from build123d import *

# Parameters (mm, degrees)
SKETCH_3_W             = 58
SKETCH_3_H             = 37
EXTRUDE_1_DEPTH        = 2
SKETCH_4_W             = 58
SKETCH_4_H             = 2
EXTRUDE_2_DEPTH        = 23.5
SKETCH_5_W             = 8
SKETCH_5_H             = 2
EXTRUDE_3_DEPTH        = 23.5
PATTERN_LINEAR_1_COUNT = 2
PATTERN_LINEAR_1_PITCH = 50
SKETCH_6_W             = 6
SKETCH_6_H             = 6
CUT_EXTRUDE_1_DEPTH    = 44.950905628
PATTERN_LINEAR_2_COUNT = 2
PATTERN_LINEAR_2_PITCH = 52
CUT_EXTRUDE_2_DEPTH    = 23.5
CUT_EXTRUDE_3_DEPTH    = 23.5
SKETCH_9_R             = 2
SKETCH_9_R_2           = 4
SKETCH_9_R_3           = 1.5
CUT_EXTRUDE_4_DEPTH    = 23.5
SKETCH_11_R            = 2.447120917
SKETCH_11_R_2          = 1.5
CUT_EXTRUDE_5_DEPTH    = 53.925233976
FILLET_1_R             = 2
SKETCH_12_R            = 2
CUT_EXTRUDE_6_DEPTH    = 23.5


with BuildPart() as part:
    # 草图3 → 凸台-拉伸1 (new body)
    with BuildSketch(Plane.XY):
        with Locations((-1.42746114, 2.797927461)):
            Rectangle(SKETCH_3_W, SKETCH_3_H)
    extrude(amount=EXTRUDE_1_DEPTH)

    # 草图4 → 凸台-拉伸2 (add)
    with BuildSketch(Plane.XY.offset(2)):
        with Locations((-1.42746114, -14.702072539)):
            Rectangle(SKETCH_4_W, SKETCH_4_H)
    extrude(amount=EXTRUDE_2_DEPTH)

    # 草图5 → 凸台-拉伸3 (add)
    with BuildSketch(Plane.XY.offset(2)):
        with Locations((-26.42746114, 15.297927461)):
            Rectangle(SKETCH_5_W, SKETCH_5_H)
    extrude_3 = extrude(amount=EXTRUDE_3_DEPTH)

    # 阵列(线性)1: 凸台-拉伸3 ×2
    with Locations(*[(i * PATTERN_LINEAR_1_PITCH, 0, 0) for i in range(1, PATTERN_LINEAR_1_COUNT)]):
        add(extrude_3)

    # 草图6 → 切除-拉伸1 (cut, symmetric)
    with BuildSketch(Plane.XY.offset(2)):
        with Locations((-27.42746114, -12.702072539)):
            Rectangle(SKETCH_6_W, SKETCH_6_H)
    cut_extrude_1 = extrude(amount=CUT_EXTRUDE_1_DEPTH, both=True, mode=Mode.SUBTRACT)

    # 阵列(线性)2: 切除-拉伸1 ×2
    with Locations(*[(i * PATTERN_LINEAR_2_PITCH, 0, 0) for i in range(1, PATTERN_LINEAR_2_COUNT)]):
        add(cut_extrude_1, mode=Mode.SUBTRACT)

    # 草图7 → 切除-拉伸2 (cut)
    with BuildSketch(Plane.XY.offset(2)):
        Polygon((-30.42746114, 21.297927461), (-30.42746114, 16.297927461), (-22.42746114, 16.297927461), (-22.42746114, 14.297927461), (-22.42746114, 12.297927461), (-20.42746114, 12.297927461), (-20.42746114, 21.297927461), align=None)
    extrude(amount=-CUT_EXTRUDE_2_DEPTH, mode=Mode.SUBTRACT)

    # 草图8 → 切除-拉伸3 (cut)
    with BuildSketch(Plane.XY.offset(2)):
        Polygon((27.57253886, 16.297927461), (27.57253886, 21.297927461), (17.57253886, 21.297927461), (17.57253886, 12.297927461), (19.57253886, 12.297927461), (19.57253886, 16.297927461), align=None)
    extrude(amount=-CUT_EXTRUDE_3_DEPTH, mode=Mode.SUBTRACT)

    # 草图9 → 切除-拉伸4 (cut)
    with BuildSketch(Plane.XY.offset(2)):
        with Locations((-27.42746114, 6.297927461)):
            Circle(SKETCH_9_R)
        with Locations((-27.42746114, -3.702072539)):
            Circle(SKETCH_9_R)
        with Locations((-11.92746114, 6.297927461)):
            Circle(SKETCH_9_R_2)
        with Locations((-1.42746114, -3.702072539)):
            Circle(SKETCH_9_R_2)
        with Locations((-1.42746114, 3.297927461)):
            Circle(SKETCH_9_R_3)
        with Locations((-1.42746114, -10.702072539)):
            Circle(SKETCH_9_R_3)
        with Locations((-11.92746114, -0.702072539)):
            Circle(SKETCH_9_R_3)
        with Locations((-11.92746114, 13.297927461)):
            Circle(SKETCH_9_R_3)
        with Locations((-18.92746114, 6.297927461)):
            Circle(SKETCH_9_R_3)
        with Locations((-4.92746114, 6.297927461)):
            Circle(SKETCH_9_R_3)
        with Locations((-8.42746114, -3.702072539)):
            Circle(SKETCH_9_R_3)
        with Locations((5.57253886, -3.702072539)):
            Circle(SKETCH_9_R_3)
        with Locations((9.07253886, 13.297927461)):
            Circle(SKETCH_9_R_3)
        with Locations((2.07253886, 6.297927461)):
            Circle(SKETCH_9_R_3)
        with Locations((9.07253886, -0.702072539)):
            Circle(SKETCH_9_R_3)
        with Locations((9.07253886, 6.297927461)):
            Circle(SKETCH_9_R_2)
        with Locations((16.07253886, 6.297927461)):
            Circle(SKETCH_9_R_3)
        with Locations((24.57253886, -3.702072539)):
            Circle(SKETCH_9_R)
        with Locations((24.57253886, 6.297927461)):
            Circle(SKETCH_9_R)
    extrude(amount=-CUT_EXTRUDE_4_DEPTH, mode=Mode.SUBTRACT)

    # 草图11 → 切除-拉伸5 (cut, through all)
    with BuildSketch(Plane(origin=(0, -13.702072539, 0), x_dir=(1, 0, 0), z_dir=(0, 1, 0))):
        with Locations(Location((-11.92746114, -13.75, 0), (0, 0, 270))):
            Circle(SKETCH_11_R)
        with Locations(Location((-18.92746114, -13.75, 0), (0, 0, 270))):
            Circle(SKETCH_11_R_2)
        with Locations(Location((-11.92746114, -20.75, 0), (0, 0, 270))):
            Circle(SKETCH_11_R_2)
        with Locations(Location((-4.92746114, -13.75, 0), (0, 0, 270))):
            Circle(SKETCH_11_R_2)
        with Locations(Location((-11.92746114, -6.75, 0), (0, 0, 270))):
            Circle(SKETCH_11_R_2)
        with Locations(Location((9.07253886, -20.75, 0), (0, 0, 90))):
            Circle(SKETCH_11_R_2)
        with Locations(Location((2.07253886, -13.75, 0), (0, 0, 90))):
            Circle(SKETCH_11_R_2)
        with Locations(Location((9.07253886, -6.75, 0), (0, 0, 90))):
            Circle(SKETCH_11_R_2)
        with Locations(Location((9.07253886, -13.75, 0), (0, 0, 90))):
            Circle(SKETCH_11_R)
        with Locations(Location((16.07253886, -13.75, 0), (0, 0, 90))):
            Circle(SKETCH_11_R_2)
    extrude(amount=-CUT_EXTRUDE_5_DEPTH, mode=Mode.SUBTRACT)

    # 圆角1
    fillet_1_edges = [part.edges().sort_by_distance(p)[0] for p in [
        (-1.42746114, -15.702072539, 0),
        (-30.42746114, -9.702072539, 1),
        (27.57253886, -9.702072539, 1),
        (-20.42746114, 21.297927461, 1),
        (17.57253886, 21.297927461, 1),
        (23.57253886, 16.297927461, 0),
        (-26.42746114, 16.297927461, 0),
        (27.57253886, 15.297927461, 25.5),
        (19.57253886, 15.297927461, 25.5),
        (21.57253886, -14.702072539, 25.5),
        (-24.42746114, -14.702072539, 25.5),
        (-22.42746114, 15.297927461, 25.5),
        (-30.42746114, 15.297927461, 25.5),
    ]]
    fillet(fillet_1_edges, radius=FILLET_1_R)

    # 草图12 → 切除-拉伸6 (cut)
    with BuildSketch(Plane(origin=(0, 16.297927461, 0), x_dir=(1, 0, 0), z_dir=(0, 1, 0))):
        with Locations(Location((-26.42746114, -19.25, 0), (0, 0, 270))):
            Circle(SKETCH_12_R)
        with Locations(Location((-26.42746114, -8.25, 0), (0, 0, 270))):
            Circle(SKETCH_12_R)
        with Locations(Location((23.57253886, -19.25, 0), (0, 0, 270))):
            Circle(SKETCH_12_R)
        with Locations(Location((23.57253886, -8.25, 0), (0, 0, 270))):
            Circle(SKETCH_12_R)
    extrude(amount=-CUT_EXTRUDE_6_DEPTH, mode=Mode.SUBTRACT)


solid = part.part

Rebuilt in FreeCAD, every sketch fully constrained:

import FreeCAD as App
import Part
import Sketcher
Q = App.Units.Quantity


def edges_at(feature, points):
    """Names of the edges that pass closest to the given points."""
    edges = feature.Shape.Edges
    near = lambda p: min(range(len(edges)), key=lambda i: edges[i].distToShape(Part.Vertex(*p))[0])
    return sorted({f"Edge{near(p) + 1}" for p in points})


def add_polygon(sketch, points):
    """Adds a closed chain of lines whose ends are joined by coincident constraints."""
    first, n = sketch.GeometryCount, len(points)
    for a, b in zip(points, points[1:] + points[:1]):
        sketch.addGeometry(Part.LineSegment(App.Vector(*a, 0), App.Vector(*b, 0)), False)
    for i in range(n):
        sketch.addConstraint(Sketcher.Constraint("Coincident", first + i, 2, first + (i + 1) % n, 1))

doc = App.newDocument("Part")
body = doc.addObject("PartDesign::Body", "Body")

# Sketch on XY plane
sketch1 = body.newObject("Sketcher::SketchObject", "Sketch")
sketch1.AttachmentSupport = (doc.getObject("XY_Plane"), [""])
sketch1.MapMode = "FlatFace"
add_polygon(sketch1, [(-30, 21), (-30, -16), (28, -16), (28, 21)])  # lines 0-3
sketch1.addConstraint([
    Sketcher.Constraint("Vertical", 0),
    Sketcher.Constraint("Horizontal", 1),
    Sketcher.Constraint("Vertical", 2),
    Sketcher.Constraint("Horizontal", 3),
    Sketcher.Constraint("DistanceX", 1, 1, 1, 2, Q("58 mm")),
    Sketcher.Constraint("DistanceY", 0, 2, 0, 1, Q("37 mm")),
    Sketcher.Constraint("DistanceX", 0, 2, -1, 1, Q("30.427461 mm")),
    Sketcher.Constraint("DistanceY", 0, 2, -1, 1, Q("15.702073 mm")),
])
pad1 = body.newObject("PartDesign::Pad", "Pad")
pad1.Profile = sketch1
pad1.Length = 2

# Sketch on XY plane
sketch2 = body.newObject("Sketcher::SketchObject", "Sketch001")
sketch2.AttachmentSupport = (doc.getObject("XY_Plane"), [""])
sketch2.MapMode = "FlatFace"
sketch2.AttachmentOffset = App.Placement(App.Vector(0, 0, 2), App.Rotation())
add_polygon(sketch2, [(-30.4, -13.7), (-30.4, -15.7), (27.6, -15.7), (27.6, -13.7)])  # lines 0-3
sketch2.addConstraint([
    Sketcher.Constraint("Vertical", 0),
    Sketcher.Constraint("Horizontal", 1),
    Sketcher.Constraint("Vertical", 2),
    Sketcher.Constraint("Horizontal", 3),
    Sketcher.Constraint("DistanceX", 1, 1, 1, 2, Q("58 mm")),
    Sketcher.Constraint("DistanceY", 0, 2, 0, 1, Q("2 mm")),
    Sketcher.Constraint("DistanceX", 0, 2, -1, 1, Q("30.427461 mm")),
    Sketcher.Constraint("DistanceY", 0, 2, -1, 1, Q("15.702073 mm")),
])
pad2 = body.newObject("PartDesign::Pad", "Pad001")
pad2.Profile = sketch2
pad2.Length = 23.5

# Sketch on XY plane
sketch3 = body.newObject("Sketcher::SketchObject", "Sketch002")
sketch3.AttachmentSupport = (doc.getObject("XY_Plane"), [""])
sketch3.MapMode = "FlatFace"
sketch3.AttachmentOffset = App.Placement(App.Vector(0, 0, 2), App.Rotation())
add_polygon(sketch3, [(-30.4, 16.3), (-30.4, 14.3), (-22.4, 14.3), (-22.4, 16.3)])  # lines 0-3
sketch3.addConstraint([
    Sketcher.Constraint("Vertical", 0),
    Sketcher.Constraint("Horizontal", 1),
    Sketcher.Constraint("Vertical", 2),
    Sketcher.Constraint("Horizontal", 3),
    Sketcher.Constraint("DistanceX", 1, 1, 1, 2, Q("8 mm")),
    Sketcher.Constraint("DistanceY", 0, 2, 0, 1, Q("2 mm")),
    Sketcher.Constraint("DistanceX", 0, 2, -1, 1, Q("30.427461 mm")),
    Sketcher.Constraint("DistanceY", -1, 1, 0, 2, Q("14.297927 mm")),
])
pad3 = body.newObject("PartDesign::Pad", "Pad002")
pad3.Profile = sketch3
pad3.Length = 23.5
doc.recompute()

linearpattern = body.newObject("PartDesign::LinearPattern", "LinearPattern")
linearpattern.Originals = [pad3]
linearpattern.Direction = (doc.getObject("X_Axis"), [""])
linearpattern.Mode = "offset"
linearpattern.Offset = 50
linearpattern.Occurrences = 2
body.Tip = linearpattern

# Sketch on XY plane
sketch4 = body.newObject("Sketcher::SketchObject", "Sketch003")
sketch4.AttachmentSupport = (doc.getObject("XY_Plane"), [""])
sketch4.MapMode = "FlatFace"
sketch4.AttachmentOffset = App.Placement(App.Vector(0, 0, 2), App.Rotation())
add_polygon(sketch4, [(-30, -10), (-30, -16), (-24, -16), (-24, -10)])  # lines 0-3
sketch4.addConstraint([
    Sketcher.Constraint("Vertical", 0),
    Sketcher.Constraint("Horizontal", 1),
    Sketcher.Constraint("Vertical", 2),
    Sketcher.Constraint("Horizontal", 3),
    Sketcher.Constraint("Equal", 3, 0),
    Sketcher.Constraint("DistanceX", 1, 1, 1, 2, Q("6 mm")),
    Sketcher.Constraint("DistanceX", 0, 2, -1, 1, Q("30.427461 mm")),
    Sketcher.Constraint("DistanceY", 0, 2, -1, 1, Q("15.702073 mm")),
])
pocket1 = body.newObject("PartDesign::Pocket", "Pocket")
pocket1.Profile = sketch4
pocket1.Length = 89.901811
pocket1.Midplane = True
doc.recompute()

linearpattern2 = body.newObject("PartDesign::LinearPattern", "LinearPattern001")
linearpattern2.Originals = [pocket1]
linearpattern2.Direction = (doc.getObject("X_Axis"), [""])
linearpattern2.Mode = "offset"
linearpattern2.Offset = 52
linearpattern2.Occurrences = 2
body.Tip = linearpattern2

# Sketch on XY plane
sketch5 = body.newObject("Sketcher::SketchObject", "Sketch004")
sketch5.AttachmentSupport = (doc.getObject("XY_Plane"), [""])
sketch5.MapMode = "FlatFace"
sketch5.AttachmentOffset = App.Placement(App.Vector(0, 0, 2), App.Rotation())
add_polygon(sketch5, [(-30.4, 21.3), (-30.4, 16.3), (-22.4, 16.3), (-22.4, 12.3), (-20.4, 12.3), (-20.4, 21.3)])  # lines 0-5
sketch5.addConstraint([
    Sketcher.Constraint("Vertical", 0),
    Sketcher.Constraint("Horizontal", 1),
    Sketcher.Constraint("Vertical", 2),
    Sketcher.Constraint("Horizontal", 3),
    Sketcher.Constraint("Vertical", 4),
    Sketcher.Constraint("Horizontal", 5),
    Sketcher.Constraint("DistanceX", 1, 1, 1, 2, Q("8 mm")),
    Sketcher.Constraint("DistanceX", 3, 1, 3, 2, Q("2 mm")),
    Sketcher.Constraint("DistanceY", 0, 2, 0, 1, Q("5 mm")),
    Sketcher.Constraint("DistanceY", 2, 2, 2, 1, Q("4 mm")),
    Sketcher.Constraint("DistanceX", 0, 2, -1, 1, Q("30.427461 mm")),
    Sketcher.Constraint("DistanceY", -1, 1, 0, 2, Q("16.297927 mm")),
])
pocket2 = body.newObject("PartDesign::Pocket", "Pocket001")
pocket2.Profile = sketch5
pocket2.Length = 23.5

# Sketch on XY plane
sketch6 = body.newObject("Sketcher::SketchObject", "Sketch005")
sketch6.AttachmentSupport = (doc.getObject("XY_Plane"), [""])
sketch6.MapMode = "FlatFace"
sketch6.AttachmentOffset = App.Placement(App.Vector(0, 0, 2), App.Rotation())
add_polygon(sketch6, [(27.6, 16.3), (27.6, 21.3), (17.6, 21.3), (17.6, 12.3), (19.6, 12.3), (19.6, 16.3)])  # lines 0-5
sketch6.addConstraint([
    Sketcher.Constraint("Vertical", 0),
    Sketcher.Constraint("Horizontal", 1),
    Sketcher.Constraint("Vertical", 2),
    Sketcher.Constraint("Horizontal", 3),
    Sketcher.Constraint("Vertical", 4),
    Sketcher.Constraint("Horizontal", 5),
    Sketcher.Constraint("DistanceX", 1, 2, 1, 1, Q("10 mm")),
    Sketcher.Constraint("DistanceX", 3, 1, 3, 2, Q("2 mm")),
    Sketcher.Constraint("DistanceY", 0, 1, 0, 2, Q("5 mm")),
    Sketcher.Constraint("DistanceY", 2, 2, 2, 1, Q("9 mm")),
    Sketcher.Constraint("DistanceX", -1, 1, 0, 2, Q("27.572539 mm")),
    Sketcher.Constraint("DistanceY", -1, 1, 0, 2, Q("21.297927 mm")),
])
pocket3 = body.newObject("PartDesign::Pocket", "Pocket002")
pocket3.Profile = sketch6
pocket3.Length = 23.5

# Sketch on XY plane
sketch7 = body.newObject("Sketcher::SketchObject", "Sketch006")
sketch7.AttachmentSupport = (doc.getObject("XY_Plane"), [""])
sketch7.MapMode = "FlatFace"
sketch7.AttachmentOffset = App.Placement(App.Vector(0, 0, 2), App.Rotation())
sketch7.addGeometry([
    Part.Circle(App.Vector(-27.4, 6.3, 0), App.Vector(0, 0, 1), 2),  # 0
    Part.Circle(App.Vector(-27.4, -3.7, 0), App.Vector(0, 0, 1), 2),  # 1
    Part.Circle(App.Vector(-11.9, 6.3, 0), App.Vector(0, 0, 1), 4),  # 2
    Part.Circle(App.Vector(-1.4, -3.7, 0), App.Vector(0, 0, 1), 4),  # 3
    Part.Circle(App.Vector(-1.4, 3.3, 0), App.Vector(0, 0, 1), 1.5),  # 4
    Part.Circle(App.Vector(-1.4, -10.7, 0), App.Vector(0, 0, 1), 1.5),  # 5
    Part.Circle(App.Vector(-11.9, -0.7, 0), App.Vector(0, 0, 1), 1.5),  # 6
    Part.Circle(App.Vector(-11.9, 13.3, 0), App.Vector(0, 0, 1), 1.5),  # 7
    Part.Circle(App.Vector(-18.9, 6.3, 0), App.Vector(0, 0, 1), 1.5),  # 8
    Part.Circle(App.Vector(-4.9, 6.3, 0), App.Vector(0, 0, 1), 1.5),  # 9
    Part.Circle(App.Vector(-8.4, -3.7, 0), App.Vector(0, 0, 1), 1.5),  # 10
    Part.Circle(App.Vector(5.6, -3.7, 0), App.Vector(0, 0, 1), 1.5),  # 11
    Part.Circle(App.Vector(9.1, 13.3, 0), App.Vector(0, 0, 1), 1.5),  # 12
    Part.Circle(App.Vector(2.1, 6.3, 0), App.Vector(0, 0, 1), 1.5),  # 13
    Part.Circle(App.Vector(9.1, -0.7, 0), App.Vector(0, 0, 1), 1.5),  # 14
    Part.Circle(App.Vector(9.1, 6.3, 0), App.Vector(0, 0, 1), 4),  # 15
    Part.Circle(App.Vector(16.1, 6.3, 0), App.Vector(0, 0, 1), 1.5),  # 16
    Part.Circle(App.Vector(24.6, -3.7, 0), App.Vector(0, 0, 1), 2),  # 17
    Part.Circle(App.Vector(24.6, 6.3, 0), App.Vector(0, 0, 1), 2),  # 18
], False)
sketch7.addConstraint([
    Sketcher.Constraint("Equal", 0, 1),
    Sketcher.Constraint("Equal", 2, 3),
    Sketcher.Constraint("Equal", 4, 5),
    Sketcher.Constraint("Equal", 5, 6),
    Sketcher.Constraint("Equal", 6, 7),
    Sketcher.Constraint("Equal", 7, 8),
    Sketcher.Constraint("Equal", 8, 9),
    Sketcher.Constraint("Equal", 9, 10),
    Sketcher.Constraint("Equal", 10, 11),
    Sketcher.Constraint("Equal", 11, 12),
    Sketcher.Constraint("Equal", 12, 13),
    Sketcher.Constraint("Equal", 13, 14),
    Sketcher.Constraint("Equal", 3, 15),
    Sketcher.Constraint("Equal", 14, 16),
    Sketcher.Constraint("Equal", 1, 17),
    Sketcher.Constraint("Equal", 17, 18),
    Sketcher.Constraint("Horizontal", 0, 3, 2, 3),
    Sketcher.Constraint("Horizontal", 1, 3, 3, 3),
    Sketcher.Constraint("Horizontal", 2, 3, 8, 3),
    Sketcher.Constraint("Horizontal", 8, 3, 9, 3),
    Sketcher.Constraint("Horizontal", 3, 3, 10, 3),
    Sketcher.Constraint("Horizontal", 10, 3, 11, 3),
    Sketcher.Constraint("Horizontal", 7, 3, 12, 3),
    Sketcher.Constraint("Horizontal", 9, 3, 13, 3),
    Sketcher.Constraint("Horizontal", 6, 3, 14, 3),
    Sketcher.Constraint("Horizontal", 13, 3, 15, 3),
    Sketcher.Constraint("Horizontal", 15, 3, 16, 3),
    Sketcher.Constraint("Horizontal", 11, 3, 17, 3),
    Sketcher.Constraint("Horizontal", 16, 3, 18, 3),
    Sketcher.Constraint("Vertical", 0, 3, 1, 3),
    Sketcher.Constraint("Vertical", 3, 3, 4, 3),
    Sketcher.Constraint("Vertical", 4, 3, 5, 3),
    Sketcher.Constraint("Vertical", 2, 3, 6, 3),
    Sketcher.Constraint("Vertical", 6, 3, 7, 3),
    Sketcher.Constraint("Vertical", 12, 3, 14, 3),
    Sketcher.Constraint("Vertical", 14, 3, 15, 3),
    Sketcher.Constraint("Vertical", 17, 3, 18, 3),
    Sketcher.Constraint("Diameter", 0, Q("4 mm")),
    Sketcher.Constraint("Diameter", 2, Q("8 mm")),
    Sketcher.Constraint("Diameter", 4, Q("3 mm")),
    Sketcher.Constraint("DistanceY", 1, 3, 0, 3, Q("10 mm")),
    Sketcher.Constraint("DistanceX", 1, 3, 3, 3, Q("26 mm")),
    Sketcher.Constraint("DistanceY", 3, 3, 4, 3, Q("7 mm")),
    Sketcher.Constraint("DistanceY", 5, 3, 3, 3, Q("7 mm")),
    Sketcher.Constraint("DistanceY", 6, 3, 2, 3, Q("7 mm")),
    Sketcher.Constraint("DistanceY", 2, 3, 7, 3, Q("7 mm")),
    Sketcher.Constraint("DistanceX", 8, 3, 2, 3, Q("7 mm")),
    Sketcher.Constraint("DistanceX", 2, 3, 9, 3, Q("7 mm")),
    Sketcher.Constraint("DistanceX", 10, 3, 3, 3, Q("7 mm")),
    Sketcher.Constraint("DistanceX", 3, 3, 11, 3, Q("7 mm")),
    Sketcher.Constraint("DistanceX", 9, 3, 12, 3, Q("14 mm")),
    Sketcher.Constraint("DistanceX", 9, 3, 13, 3, Q("7 mm")),
    Sketcher.Constraint("DistanceX", 15, 3, 16, 3, Q("7 mm")),
    Sketcher.Constraint("DistanceX", 11, 3, 17, 3, Q("19 mm")),
    Sketcher.Constraint("DistanceX", 0, 3, 2, 3, Q("15.5 mm")),
    Sketcher.Constraint("DistanceX", 0, 3, -1, 1, Q("27.427461 mm")),
    Sketcher.Constraint("DistanceY", -1, 1, 0, 3, Q("6.297927 mm")),
])
pocket4 = body.newObject("PartDesign::Pocket", "Pocket003")
pocket4.Profile = sketch7
pocket4.Length = 23.5

# Sketch on XZ plane
sketch8 = body.newObject("Sketcher::SketchObject", "Sketch007")
sketch8.AttachmentSupport = (doc.getObject("XZ_Plane"), [""])
sketch8.MapMode = "FlatFace"
sketch8.AttachmentOffset = App.Placement(App.Vector(0, 0, 13.702073), App.Rotation())
sketch8.addGeometry([
    Part.Circle(App.Vector(-11.9, 13.8, 0), App.Vector(0, 0, 1), 2.4),  # 0
    Part.Circle(App.Vector(-18.9, 13.8, 0), App.Vector(0, 0, 1), 1.5),  # 1
    Part.Circle(App.Vector(-11.9, 20.8, 0), App.Vector(0, 0, 1), 1.5),  # 2
    Part.Circle(App.Vector(-4.9, 13.8, 0), App.Vector(0, 0, 1), 1.5),  # 3
    Part.Circle(App.Vector(-11.9, 6.8, 0), App.Vector(0, 0, 1), 1.5),  # 4
    Part.Circle(App.Vector(9.1, 20.8, 0), App.Vector(0, 0, 1), 1.5),  # 5
    Part.Circle(App.Vector(2.1, 13.8, 0), App.Vector(0, 0, 1), 1.5),  # 6
    Part.Circle(App.Vector(9.1, 6.8, 0), App.Vector(0, 0, 1), 1.5),  # 7
    Part.Circle(App.Vector(9.1, 13.8, 0), App.Vector(0, 0, 1), 2.4),  # 8
    Part.Circle(App.Vector(16.1, 13.8, 0), App.Vector(0, 0, 1), 1.5),  # 9
], False)
sketch8.addConstraint([
    Sketcher.Constraint("Equal", 1, 2),
    Sketcher.Constraint("Equal", 2, 3),
    Sketcher.Constraint("Equal", 3, 4),
    Sketcher.Constraint("Equal", 4, 5),
    Sketcher.Constraint("Equal", 5, 6),
    Sketcher.Constraint("Equal", 6, 7),
    Sketcher.Constraint("Equal", 0, 8),
    Sketcher.Constraint("Equal", 7, 9),
    Sketcher.Constraint("Horizontal", 0, 3, 1, 3),
    Sketcher.Constraint("Horizontal", 1, 3, 3, 3),
    Sketcher.Constraint("Horizontal", 2, 3, 5, 3),
    Sketcher.Constraint("Horizontal", 3, 3, 6, 3),
    Sketcher.Constraint("Horizontal", 4, 3, 7, 3),
    Sketcher.Constraint("Horizontal", 6, 3, 8, 3),
    Sketcher.Constraint("Horizontal", 8, 3, 9, 3),
    Sketcher.Constraint("Vertical", 0, 3, 2, 3),
    Sketcher.Constraint("Vertical", 2, 3, 4, 3),
    Sketcher.Constraint("Vertical", 5, 3, 7, 3),
    Sketcher.Constraint("Vertical", 7, 3, 8, 3),
    Sketcher.Constraint("Diameter", 1, Q("3 mm")),
    Sketcher.Constraint("DistanceX", 1, 3, 0, 3, Q("7 mm")),
    Sketcher.Constraint("DistanceY", 0, 3, 2, 3, Q("7 mm")),
    Sketcher.Constraint("DistanceX", 0, 3, 3, 3, Q("7 mm")),
    Sketcher.Constraint("DistanceY", 4, 3, 0, 3, Q("7 mm")),
    Sketcher.Constraint("DistanceX", 3, 3, 5, 3, Q("14 mm")),
    Sketcher.Constraint("DistanceX", 3, 3, 6, 3, Q("7 mm")),
    Sketcher.Constraint("DistanceX", 8, 3, 9, 3, Q("7 mm")),
    Sketcher.Constraint("Diameter", 0, Q("4.894242 mm")),
    Sketcher.Constraint("DistanceY", -1, 1, 0, 3, Q("13.75 mm")),
    Sketcher.Constraint("DistanceX", 0, 3, -1, 1, Q("11.927461 mm")),
])
pocket5 = body.newObject("PartDesign::Pocket", "Pocket004")
pocket5.Profile = sketch8
pocket5.Type = "ThroughAll"
pocket5.Reversed = True
doc.recompute()

fillet = body.newObject("PartDesign::Fillet", "Fillet")
fillet.Base = (pocket5, edges_at(pocket5, [
    (-1.427, -15.702, 0),
    (-30.427, -9.702, 1),
    (27.573, -9.702, 1),
    (-20.427, 21.298, 1),
    (17.573, 21.298, 1),
    (23.573, 16.298, 0),
    (-26.427, 16.298, 0),
    (27.573, 15.298, 25.5),
    (19.573, 15.298, 25.5),
    (21.573, -14.702, 25.5),
    (-24.427, -14.702, 25.5),
    (-22.427, 15.298, 25.5),
    (-30.427, 15.298, 25.5),
]))
fillet.Radius = 2

# Sketch on XZ plane
sketch9 = body.newObject("Sketcher::SketchObject", "Sketch008")
sketch9.AttachmentSupport = (doc.getObject("XZ_Plane"), [""])
sketch9.MapMode = "FlatFace"
sketch9.AttachmentOffset = App.Placement(App.Vector(0, 0, -16.297927), App.Rotation())
sketch9.addGeometry([
    Part.Circle(App.Vector(-26.4, 19.2, 0), App.Vector(0, 0, 1), 2),
    Part.Circle(App.Vector(-26.4, 8.2, 0), App.Vector(0, 0, 1), 2),
    Part.Circle(App.Vector(23.6, 19.2, 0), App.Vector(0, 0, 1), 2),
    Part.Circle(App.Vector(23.6, 8.2, 0), App.Vector(0, 0, 1), 2),
], False)
sketch9.addConstraint([
    Sketcher.Constraint("Equal", 0, 1),
    Sketcher.Constraint("Equal", 1, 2),
    Sketcher.Constraint("Equal", 2, 3),
    Sketcher.Constraint("Horizontal", 0, 3, 2, 3),
    Sketcher.Constraint("Horizontal", 1, 3, 3, 3),
    Sketcher.Constraint("Vertical", 0, 3, 1, 3),
    Sketcher.Constraint("Vertical", 2, 3, 3, 3),
    Sketcher.Constraint("Diameter", 0, Q("4 mm")),
    Sketcher.Constraint("DistanceY", 1, 3, 0, 3, Q("11 mm")),
    Sketcher.Constraint("DistanceX", 0, 3, 2, 3, Q("50 mm")),
    Sketcher.Constraint("DistanceY", -1, 1, 0, 3, Q("19.25 mm")),
    Sketcher.Constraint("DistanceX", 0, 3, -1, 1, Q("26.427461 mm")),
])
pocket6 = body.newObject("PartDesign::Pocket", "Pocket005")
pocket6.Profile = sketch9
pocket6.Length = 23.5
pocket6.Reversed = True

doc.recompute()
